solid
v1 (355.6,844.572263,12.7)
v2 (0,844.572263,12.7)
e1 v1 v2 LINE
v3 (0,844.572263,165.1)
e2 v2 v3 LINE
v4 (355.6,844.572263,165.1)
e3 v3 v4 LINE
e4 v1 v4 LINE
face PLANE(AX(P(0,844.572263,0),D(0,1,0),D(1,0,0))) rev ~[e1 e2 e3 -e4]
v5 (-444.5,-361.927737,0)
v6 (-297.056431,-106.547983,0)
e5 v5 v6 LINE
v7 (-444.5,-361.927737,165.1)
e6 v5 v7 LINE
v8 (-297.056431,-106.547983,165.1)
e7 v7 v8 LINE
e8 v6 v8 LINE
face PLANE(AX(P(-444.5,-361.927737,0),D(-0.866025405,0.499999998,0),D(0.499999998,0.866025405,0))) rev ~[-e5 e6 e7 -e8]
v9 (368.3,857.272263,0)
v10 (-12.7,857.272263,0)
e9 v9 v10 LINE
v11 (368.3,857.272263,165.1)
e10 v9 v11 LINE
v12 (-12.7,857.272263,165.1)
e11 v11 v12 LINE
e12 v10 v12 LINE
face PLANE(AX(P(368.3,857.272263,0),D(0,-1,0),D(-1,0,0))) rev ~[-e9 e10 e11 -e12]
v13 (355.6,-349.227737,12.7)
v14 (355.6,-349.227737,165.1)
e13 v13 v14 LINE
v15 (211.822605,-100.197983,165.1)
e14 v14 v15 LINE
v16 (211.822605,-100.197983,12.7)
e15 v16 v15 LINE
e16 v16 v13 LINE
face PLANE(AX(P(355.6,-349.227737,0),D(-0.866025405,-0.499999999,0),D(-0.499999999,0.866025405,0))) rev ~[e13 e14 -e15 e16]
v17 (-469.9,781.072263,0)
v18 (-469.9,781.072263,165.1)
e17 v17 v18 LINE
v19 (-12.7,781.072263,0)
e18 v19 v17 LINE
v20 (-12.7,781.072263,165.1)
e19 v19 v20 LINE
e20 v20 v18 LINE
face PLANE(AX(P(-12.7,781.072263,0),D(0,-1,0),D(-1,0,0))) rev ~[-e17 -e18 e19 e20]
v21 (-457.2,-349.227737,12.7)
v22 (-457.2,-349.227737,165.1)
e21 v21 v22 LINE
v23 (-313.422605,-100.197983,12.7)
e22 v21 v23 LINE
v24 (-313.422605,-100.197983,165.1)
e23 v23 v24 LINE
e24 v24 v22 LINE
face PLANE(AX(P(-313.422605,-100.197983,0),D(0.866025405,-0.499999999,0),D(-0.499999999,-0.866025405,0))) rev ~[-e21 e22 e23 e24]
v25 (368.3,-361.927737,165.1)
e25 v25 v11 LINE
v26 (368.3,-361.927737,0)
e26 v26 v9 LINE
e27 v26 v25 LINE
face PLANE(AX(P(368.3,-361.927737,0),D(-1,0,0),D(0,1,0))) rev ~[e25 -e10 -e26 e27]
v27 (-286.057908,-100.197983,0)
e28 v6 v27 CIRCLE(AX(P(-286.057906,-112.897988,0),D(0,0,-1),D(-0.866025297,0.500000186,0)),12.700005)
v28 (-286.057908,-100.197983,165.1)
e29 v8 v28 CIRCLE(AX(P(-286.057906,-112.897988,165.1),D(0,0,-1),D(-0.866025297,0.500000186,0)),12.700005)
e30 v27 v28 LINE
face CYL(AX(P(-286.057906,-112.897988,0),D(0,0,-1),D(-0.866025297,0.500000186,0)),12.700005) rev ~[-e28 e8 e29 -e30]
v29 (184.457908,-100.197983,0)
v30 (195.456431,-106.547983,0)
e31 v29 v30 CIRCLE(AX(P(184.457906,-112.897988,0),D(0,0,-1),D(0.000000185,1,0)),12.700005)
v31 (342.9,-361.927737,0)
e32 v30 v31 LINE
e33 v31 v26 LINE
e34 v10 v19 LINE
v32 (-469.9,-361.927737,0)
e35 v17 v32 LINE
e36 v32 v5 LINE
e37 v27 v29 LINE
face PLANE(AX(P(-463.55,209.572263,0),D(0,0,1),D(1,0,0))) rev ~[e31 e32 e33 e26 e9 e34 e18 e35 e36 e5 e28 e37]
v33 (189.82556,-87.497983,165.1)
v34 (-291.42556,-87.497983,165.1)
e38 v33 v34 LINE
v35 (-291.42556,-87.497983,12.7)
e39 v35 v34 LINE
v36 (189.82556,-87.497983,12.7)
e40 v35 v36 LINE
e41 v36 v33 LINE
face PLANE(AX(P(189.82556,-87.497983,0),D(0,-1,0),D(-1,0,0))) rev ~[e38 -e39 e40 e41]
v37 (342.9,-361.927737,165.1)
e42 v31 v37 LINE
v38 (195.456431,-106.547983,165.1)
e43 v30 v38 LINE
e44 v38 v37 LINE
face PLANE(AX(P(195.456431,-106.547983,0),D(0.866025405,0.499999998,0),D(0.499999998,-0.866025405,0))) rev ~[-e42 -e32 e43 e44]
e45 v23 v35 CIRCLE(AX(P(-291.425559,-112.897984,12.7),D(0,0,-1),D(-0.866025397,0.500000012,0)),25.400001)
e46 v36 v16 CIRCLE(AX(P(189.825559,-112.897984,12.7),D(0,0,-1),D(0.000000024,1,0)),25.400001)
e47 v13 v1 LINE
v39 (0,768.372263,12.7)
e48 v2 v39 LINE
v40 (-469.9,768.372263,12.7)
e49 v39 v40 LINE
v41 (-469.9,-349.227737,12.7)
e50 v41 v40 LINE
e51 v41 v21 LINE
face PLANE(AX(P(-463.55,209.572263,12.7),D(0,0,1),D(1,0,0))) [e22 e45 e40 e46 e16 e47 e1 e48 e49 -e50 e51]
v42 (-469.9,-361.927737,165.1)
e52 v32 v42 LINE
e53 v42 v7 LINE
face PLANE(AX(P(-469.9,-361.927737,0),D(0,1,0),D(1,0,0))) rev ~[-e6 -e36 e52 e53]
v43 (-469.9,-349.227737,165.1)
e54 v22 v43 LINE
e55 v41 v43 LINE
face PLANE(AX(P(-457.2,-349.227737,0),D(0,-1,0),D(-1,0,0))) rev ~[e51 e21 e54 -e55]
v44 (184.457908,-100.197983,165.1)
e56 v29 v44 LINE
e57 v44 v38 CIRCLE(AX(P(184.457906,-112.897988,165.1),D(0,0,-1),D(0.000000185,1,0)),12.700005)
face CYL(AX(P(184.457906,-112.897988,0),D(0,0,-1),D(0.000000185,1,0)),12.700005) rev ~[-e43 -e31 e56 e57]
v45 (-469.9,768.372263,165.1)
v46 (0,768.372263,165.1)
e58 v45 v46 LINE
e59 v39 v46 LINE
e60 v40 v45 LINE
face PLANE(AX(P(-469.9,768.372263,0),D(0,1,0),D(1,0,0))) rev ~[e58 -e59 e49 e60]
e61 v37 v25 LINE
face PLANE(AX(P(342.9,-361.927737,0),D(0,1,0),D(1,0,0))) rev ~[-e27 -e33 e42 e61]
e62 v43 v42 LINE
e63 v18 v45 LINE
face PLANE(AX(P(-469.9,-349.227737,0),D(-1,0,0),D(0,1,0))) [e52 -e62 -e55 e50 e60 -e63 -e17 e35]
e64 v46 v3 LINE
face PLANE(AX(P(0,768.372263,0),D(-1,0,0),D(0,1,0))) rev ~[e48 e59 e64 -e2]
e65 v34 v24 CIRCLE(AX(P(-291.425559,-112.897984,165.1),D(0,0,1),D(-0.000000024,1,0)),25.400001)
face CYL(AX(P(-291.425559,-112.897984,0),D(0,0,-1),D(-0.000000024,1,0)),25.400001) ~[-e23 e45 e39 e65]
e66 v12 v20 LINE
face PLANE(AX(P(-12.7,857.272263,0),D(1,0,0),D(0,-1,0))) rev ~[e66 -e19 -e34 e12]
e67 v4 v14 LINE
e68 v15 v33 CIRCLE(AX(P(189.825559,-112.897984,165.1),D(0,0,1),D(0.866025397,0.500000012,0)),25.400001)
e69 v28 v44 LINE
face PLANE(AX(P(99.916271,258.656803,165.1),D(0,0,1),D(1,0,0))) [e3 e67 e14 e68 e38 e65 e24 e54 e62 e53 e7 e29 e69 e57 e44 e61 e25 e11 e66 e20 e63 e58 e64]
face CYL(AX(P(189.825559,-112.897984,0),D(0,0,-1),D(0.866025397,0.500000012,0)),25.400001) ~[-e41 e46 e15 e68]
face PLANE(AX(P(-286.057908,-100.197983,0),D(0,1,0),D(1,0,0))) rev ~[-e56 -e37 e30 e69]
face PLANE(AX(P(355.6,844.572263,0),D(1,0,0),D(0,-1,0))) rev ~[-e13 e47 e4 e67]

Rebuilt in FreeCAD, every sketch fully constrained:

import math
import FreeCAD as App
import Part
import Sketcher
Q = App.Units.Quantity


def add_polygon(sketch, points):
    """Adds a closed chain of lines whose ends are joined by coincident constraints."""
    first, n = sketch.GeometryCount, len(points)
    for a, b in zip(points, points[1:] + points[:1]):
        sketch.addGeometry(Part.LineSegment(App.Vector(*a, 0), App.Vector(*b, 0)), False)
    for i in range(n):
        sketch.addConstraint(Sketcher.Constraint("Coincident", first + i, 2, first + (i + 1) % n, 1))

doc = App.newDocument("Part")
body = doc.addObject("PartDesign::Body", "Body")

# Sketch on XY plane
sketch1 = body.newObject("Sketcher::SketchObject", "Sketch")
sketch1.AttachmentSupport = (doc.getObject("XY_Plane"), [""])
sketch1.MapMode = "FlatFace"
sketch1.addGeometry([
    Part.LineSegment(App.Vector(343, -362, 0), App.Vector(368, -362, 0)),  # 0
    Part.LineSegment(App.Vector(368, -362, 0), App.Vector(368, 857, 0)),  # 1
    Part.LineSegment(App.Vector(368, 857, 0), App.Vector(-13, 857, 0)),  # 2
    Part.LineSegment(App.Vector(-13, 857, 0), App.Vector(-13, 781, 0)),  # 3
    Part.LineSegment(App.Vector(-13, 781, 0), App.Vector(-470, 781, 0)),  # 4
    Part.LineSegment(App.Vector(-470, 781, 0), App.Vector(-470, 768, 0)),  # 5
    Part.LineSegment(App.Vector(-470, 768, 0), App.Vector(0, 768, 0)),  # 6
    Part.LineSegment(App.Vector(0, 768, 0), App.Vector(0, 845, 0)),  # 7
    Part.LineSegment(App.Vector(0, 845, 0), App.Vector(356, 845, 0)),  # 8
    Part.LineSegment(App.Vector(356, 845, 0), App.Vector(356, -349, 0)),  # 9
    Part.LineSegment(App.Vector(356, -349, 0), App.Vector(212, -100, 0)),  # 10
    Part.ArcOfCircle(Part.Circle(App.Vector(190, -113, 0), App.Vector(0, 0, 1), 25), math.radians(30), math.radians(90)),  # 11
    Part.LineSegment(App.Vector(190, -87, 0), App.Vector(-291, -87, 0)),  # 12
    Part.ArcOfCircle(Part.Circle(App.Vector(-291, -113, 0), App.Vector(0, 0, 1), 25), math.radians(90), math.radians(150)),  # 13
    Part.LineSegment(App.Vector(-313, -100, 0), App.Vector(-457, -349, 0)),  # 14
    Part.LineSegment(App.Vector(-457, -349, 0), App.Vector(-470, -349, 0)),  # 15
    Part.LineSegment(App.Vector(-470, -349, 0), App.Vector(-470, -362, 0)),  # 16
    Part.LineSegment(App.Vector(-470, -362, 0), App.Vector(-444, -362, 0)),  # 17
    Part.LineSegment(App.Vector(-444, -362, 0), App.Vector(-297, -107, 0)),  # 18
    Part.ArcOfCircle(Part.Circle(App.Vector(-286, -113, 0), App.Vector(0, 0, 1), 13), math.radians(90), math.radians(150)),  # 19
    Part.LineSegment(App.Vector(-286, -100, 0), App.Vector(184, -100, 0)),  # 20
    Part.ArcOfCircle(Part.Circle(App.Vector(184, -113, 0), App.Vector(0, 0, 1), 13), math.radians(30), math.radians(90)),  # 21
    Part.LineSegment(App.Vector(195, -107, 0), App.Vector(343, -362, 0)),  # 22
], False)
sketch1.addConstraint([
    Sketcher.Constraint("Coincident", 0, 2, 1, 1),
    Sketcher.Constraint("Coincident", 1, 2, 2, 1),
    Sketcher.Constraint("Coincident", 2, 2, 3, 1),
    Sketcher.Constraint("Coincident", 3, 2, 4, 1),
    Sketcher.Constraint("Coincident", 4, 2, 5, 1),
    Sketcher.Constraint("Coincident", 5, 2, 6, 1),
    Sketcher.Constraint("Coincident", 6, 2, 7, 1),
    Sketcher.Constraint("Coincident", 7, 2, 8, 1),
    Sketcher.Constraint("Coincident", 8, 2, 9, 1),
    Sketcher.Constraint("Coincident", 9, 2, 10, 1),
    Sketcher.Constraint("Tangent", 10, 2, 11, 1),
    Sketcher.Constraint("Tangent", 11, 2, 12, 1),
    Sketcher.Constraint("Tangent", 12, 2, 13, 1),
    Sketcher.Constraint("Tangent", 13, 2, 14, 1),
    Sketcher.Constraint("Coincident", 14, 2, 15, 1),
    Sketcher.Constraint("Coincident", 15, 2, 16, 1),
    Sketcher.Constraint("Coincident", 16, 2, 17, 1),
    Sketcher.Constraint("Coincident", 17, 2, 18, 1),
    Sketcher.Constraint("Tangent", 18, 2, 19, 2),
    Sketcher.Constraint("Tangent", 19, 1, 20, 1),
    Sketcher.Constraint("Tangent", 20, 2, 21, 2),
    Sketcher.Constraint("Tangent", 21, 1, 22, 1),
    Sketcher.Constraint("Coincident", 22, 2, 0, 1),
    Sketcher.Constraint("Horizontal", 0),
    Sketcher.Constraint("Vertical", 1),
    Sketcher.Constraint("Horizontal", 2),
    Sketcher.Constraint("Vertical", 3),
    Sketcher.Constraint("Horizontal", 4),
    Sketcher.Constraint("Vertical", 5),
    Sketcher.Constraint("Horizontal", 6),
    Sketcher.Constraint("Vertical", 7),
    Sketcher.Constraint("Horizontal", 8),
    Sketcher.Constraint("Vertical", 9),
    Sketcher.Constraint("Horizontal", 12),
    Sketcher.Constraint("Horizontal", 15),
    Sketcher.Constraint("Vertical", 16),
    Sketcher.Constraint("Horizontal", 17),
    Sketcher.Constraint("Horizontal", 20),
    Sketcher.Constraint("Equal", 11, 13),
    Sketcher.Constraint("Equal", 19, 21),
    Sketcher.Constraint("PointOnObject", 6, 2, -2),
    Sketcher.Constraint("Parallel", 14, 18),
    Sketcher.Constraint("Parallel", 10, 22),
    Sketcher.Constraint("Horizontal", 10, 2, 13, 2),
    Sketcher.Constraint("Horizontal", 9, 2, 14, 2),
    Sketcher.Constraint("Horizontal", 0, 2, 16, 2),
    Sketcher.Constraint("Horizontal", 13, 2, 19, 1),
    Sketcher.Constraint("Vertical", 5, 2, 15, 2),
    Sketcher.Constraint("Equal", 0, 17),
    Sketcher.Constraint("Equal", 15, 5),
    Sketcher.Constraint("Equal", 3, 7),
    Sketcher.Constraint("Equal", 5, 16),
    Sketcher.Constraint("Radius", 11, Q("1 in")),
    Sketcher.Constraint("Radius", 19, Q("0.5000002 in")),
    Sketcher.Constraint("DistanceX", 0, 1, 0, 2, Q("1 in")),
    Sketcher.Constraint("DistanceX", 2, 2, 2, 1, Q("15 in")),
    Sketcher.Constraint("DistanceX", 4, 2, 4, 1, Q("18 in")),
    Sketcher.Constraint("DistanceX", 8, 1, 8, 2, Q("14 in")),
    Sketcher.Constraint("DistanceY", 1, 1, 1, 2, Q("48 in")),
    Sketcher.Constraint("DistanceY", 3, 2, 3, 1, Q("3 in")),
    Sketcher.Constraint("DistanceY", 9, 2, 9, 1, Q("47 in")),
    Sketcher.Constraint("DistanceX", 6, 1, 6, 2, Q("18.5 in")),
    Sketcher.Constraint("Angle", 10, Q("120 deg")),
    Sketcher.Constraint("DistanceX", 12, 2, 12, 1, Q("481.25112 mm")),
    Sketcher.Constraint("DistanceY", 11, 3, -1, 1, Q("112.897984 mm")),
])
pad1 = body.newObject("PartDesign::Pad", "Pad")
pad1.Profile = sketch1
pad1.Length = Q("6.5 in")

# Sketch on XY plane
sketch2 = body.newObject("Sketcher::SketchObject", "Sketch001")
sketch2.AttachmentSupport = (doc.getObject("XY_Plane"), [""])
sketch2.MapMode = "FlatFace"
sketch2.addGeometry([
    Part.LineSegment(App.Vector(0, 768, 0), App.Vector(-457, 768, 0)),  # 0
    Part.LineSegment(App.Vector(-457, 768, 0), App.Vector(-457, -349, 0)),  # 1
    Part.LineSegment(App.Vector(-457, -349, 0), App.Vector(-313, -100, 0)),  # 2
    Part.ArcOfCircle(Part.Circle(App.Vector(-291, -113, 0), App.Vector(0, 0, 1), 25), math.radians(90), math.radians(150)),  # 3
    Part.LineSegment(App.Vector(-291, -87, 0), App.Vector(190, -87, 0)),  # 4
    Part.ArcOfCircle(Part.Circle(App.Vector(190, -113, 0), App.Vector(0, 0, 1), 25), math.radians(30), math.radians(90)),  # 5
    Part.LineSegment(App.Vector(212, -100, 0), App.Vector(356, -349, 0)),  # 6
    Part.LineSegment(App.Vector(356, -349, 0), App.Vector(356, 845, 0)),  # 7
    Part.LineSegment(App.Vector(356, 845, 0), App.Vector(0, 845, 0)),  # 8
    Part.LineSegment(App.Vector(0, 845, 0), App.Vector(0, 768, 0)),  # 9
], False)
sketch2.addConstraint([
    Sketcher.Constraint("Coincident", 0, 2, 1, 1),
    Sketcher.Constraint("Coincident", 1, 2, 2, 1),
    Sketcher.Constraint("Tangent", 2, 2, 3, 2),
    Sketcher.Constraint("Tangent", 3, 1, 4, 1),
    Sketcher.Constraint("Tangent", 4, 2, 5, 2),
    Sketcher.Constraint("Tangent", 5, 1, 6, 1),
    Sketcher.Constraint("Coincident", 6, 2, 7, 1),
    Sketcher.Constraint("Coincident", 7, 2, 8, 1),
    Sketcher.Constraint("Coincident", 8, 2, 9, 1),
    Sketcher.Constraint("Coincident", 9, 2, 0, 1),
    Sketcher.Constraint("Horizontal", 0),
    Sketcher.Constraint("Vertical", 1),
    Sketcher.Constraint("Horizontal", 4),
    Sketcher.Constraint("Vertical", 7),
    Sketcher.Constraint("Horizontal", 8),
    Sketcher.Constraint("Vertical", 9),
    Sketcher.Constraint("Equal", 3, 5),
    Sketcher.Constraint("PointOnObject", 8, 2, -2),
    Sketcher.Constraint("Horizontal", 2, 2, 5, 1),
    Sketcher.Constraint("Horizontal", 1, 2, 6, 2),
    Sketcher.Constraint("Radius", 3, Q("1 in")),
    Sketcher.Constraint("DistanceX", 0, 2, 0, 1, Q("18 in")),
    Sketcher.Constraint("DistanceX", 8, 2, 8, 1, Q("14 in")),
    Sketcher.Constraint("DistanceY", 1, 2, 1, 1, Q("44 in")),
    Sketcher.Constraint("DistanceY", 7, 1, 7, 2, Q("47 in")),
    Sketcher.Constraint("Angle", 2, Q("60 deg")),
    Sketcher.Constraint("DistanceX", 4, 1, 4, 2, Q("481.25112 mm")),
    Sketcher.Constraint("DistanceY", 3, 3, -1, 1, Q("112.897984 mm")),
])
pad2 = body.newObject("PartDesign::Pad", "Pad001")
pad2.Profile = sketch2
pad2.Length = Q("0.5 in")

# Sketch on XY plane
sketch3 = body.newObject("Sketcher::SketchObject", "Sketch002")
sketch3.AttachmentSupport = (doc.getObject("XY_Plane"), [""])
sketch3.MapMode = "FlatFace"
add_polygon(sketch3, [(-470, 768), (-470, -349), (-457, -349), (-457, 768)])  # lines 0-3
sketch3.addConstraint([
    Sketcher.Constraint("Vertical", 0),
    Sketcher.Constraint("Horizontal", 1),
    Sketcher.Constraint("Vertical", 2),
    Sketcher.Constraint("Horizontal", 3),
    Sketcher.Constraint("DistanceY", 0, 2, 0, 1, Q("44 in")),
    Sketcher.Constraint("DistanceX", 1, 1, 1, 2, Q("0.5 in")),
    Sketcher.Constraint("DistanceX", 1, 2, -1, 1, Q("18 in")),
    Sketcher.Constraint("DistanceY", 0, 2, -1, 1, Q("349.227737 mm")),
])
pad3 = body.newObject("PartDesign::Pad", "Pad002")
pad3.Profile = sketch3
pad3.Length = Q("0.5 in")

doc.recompute()
